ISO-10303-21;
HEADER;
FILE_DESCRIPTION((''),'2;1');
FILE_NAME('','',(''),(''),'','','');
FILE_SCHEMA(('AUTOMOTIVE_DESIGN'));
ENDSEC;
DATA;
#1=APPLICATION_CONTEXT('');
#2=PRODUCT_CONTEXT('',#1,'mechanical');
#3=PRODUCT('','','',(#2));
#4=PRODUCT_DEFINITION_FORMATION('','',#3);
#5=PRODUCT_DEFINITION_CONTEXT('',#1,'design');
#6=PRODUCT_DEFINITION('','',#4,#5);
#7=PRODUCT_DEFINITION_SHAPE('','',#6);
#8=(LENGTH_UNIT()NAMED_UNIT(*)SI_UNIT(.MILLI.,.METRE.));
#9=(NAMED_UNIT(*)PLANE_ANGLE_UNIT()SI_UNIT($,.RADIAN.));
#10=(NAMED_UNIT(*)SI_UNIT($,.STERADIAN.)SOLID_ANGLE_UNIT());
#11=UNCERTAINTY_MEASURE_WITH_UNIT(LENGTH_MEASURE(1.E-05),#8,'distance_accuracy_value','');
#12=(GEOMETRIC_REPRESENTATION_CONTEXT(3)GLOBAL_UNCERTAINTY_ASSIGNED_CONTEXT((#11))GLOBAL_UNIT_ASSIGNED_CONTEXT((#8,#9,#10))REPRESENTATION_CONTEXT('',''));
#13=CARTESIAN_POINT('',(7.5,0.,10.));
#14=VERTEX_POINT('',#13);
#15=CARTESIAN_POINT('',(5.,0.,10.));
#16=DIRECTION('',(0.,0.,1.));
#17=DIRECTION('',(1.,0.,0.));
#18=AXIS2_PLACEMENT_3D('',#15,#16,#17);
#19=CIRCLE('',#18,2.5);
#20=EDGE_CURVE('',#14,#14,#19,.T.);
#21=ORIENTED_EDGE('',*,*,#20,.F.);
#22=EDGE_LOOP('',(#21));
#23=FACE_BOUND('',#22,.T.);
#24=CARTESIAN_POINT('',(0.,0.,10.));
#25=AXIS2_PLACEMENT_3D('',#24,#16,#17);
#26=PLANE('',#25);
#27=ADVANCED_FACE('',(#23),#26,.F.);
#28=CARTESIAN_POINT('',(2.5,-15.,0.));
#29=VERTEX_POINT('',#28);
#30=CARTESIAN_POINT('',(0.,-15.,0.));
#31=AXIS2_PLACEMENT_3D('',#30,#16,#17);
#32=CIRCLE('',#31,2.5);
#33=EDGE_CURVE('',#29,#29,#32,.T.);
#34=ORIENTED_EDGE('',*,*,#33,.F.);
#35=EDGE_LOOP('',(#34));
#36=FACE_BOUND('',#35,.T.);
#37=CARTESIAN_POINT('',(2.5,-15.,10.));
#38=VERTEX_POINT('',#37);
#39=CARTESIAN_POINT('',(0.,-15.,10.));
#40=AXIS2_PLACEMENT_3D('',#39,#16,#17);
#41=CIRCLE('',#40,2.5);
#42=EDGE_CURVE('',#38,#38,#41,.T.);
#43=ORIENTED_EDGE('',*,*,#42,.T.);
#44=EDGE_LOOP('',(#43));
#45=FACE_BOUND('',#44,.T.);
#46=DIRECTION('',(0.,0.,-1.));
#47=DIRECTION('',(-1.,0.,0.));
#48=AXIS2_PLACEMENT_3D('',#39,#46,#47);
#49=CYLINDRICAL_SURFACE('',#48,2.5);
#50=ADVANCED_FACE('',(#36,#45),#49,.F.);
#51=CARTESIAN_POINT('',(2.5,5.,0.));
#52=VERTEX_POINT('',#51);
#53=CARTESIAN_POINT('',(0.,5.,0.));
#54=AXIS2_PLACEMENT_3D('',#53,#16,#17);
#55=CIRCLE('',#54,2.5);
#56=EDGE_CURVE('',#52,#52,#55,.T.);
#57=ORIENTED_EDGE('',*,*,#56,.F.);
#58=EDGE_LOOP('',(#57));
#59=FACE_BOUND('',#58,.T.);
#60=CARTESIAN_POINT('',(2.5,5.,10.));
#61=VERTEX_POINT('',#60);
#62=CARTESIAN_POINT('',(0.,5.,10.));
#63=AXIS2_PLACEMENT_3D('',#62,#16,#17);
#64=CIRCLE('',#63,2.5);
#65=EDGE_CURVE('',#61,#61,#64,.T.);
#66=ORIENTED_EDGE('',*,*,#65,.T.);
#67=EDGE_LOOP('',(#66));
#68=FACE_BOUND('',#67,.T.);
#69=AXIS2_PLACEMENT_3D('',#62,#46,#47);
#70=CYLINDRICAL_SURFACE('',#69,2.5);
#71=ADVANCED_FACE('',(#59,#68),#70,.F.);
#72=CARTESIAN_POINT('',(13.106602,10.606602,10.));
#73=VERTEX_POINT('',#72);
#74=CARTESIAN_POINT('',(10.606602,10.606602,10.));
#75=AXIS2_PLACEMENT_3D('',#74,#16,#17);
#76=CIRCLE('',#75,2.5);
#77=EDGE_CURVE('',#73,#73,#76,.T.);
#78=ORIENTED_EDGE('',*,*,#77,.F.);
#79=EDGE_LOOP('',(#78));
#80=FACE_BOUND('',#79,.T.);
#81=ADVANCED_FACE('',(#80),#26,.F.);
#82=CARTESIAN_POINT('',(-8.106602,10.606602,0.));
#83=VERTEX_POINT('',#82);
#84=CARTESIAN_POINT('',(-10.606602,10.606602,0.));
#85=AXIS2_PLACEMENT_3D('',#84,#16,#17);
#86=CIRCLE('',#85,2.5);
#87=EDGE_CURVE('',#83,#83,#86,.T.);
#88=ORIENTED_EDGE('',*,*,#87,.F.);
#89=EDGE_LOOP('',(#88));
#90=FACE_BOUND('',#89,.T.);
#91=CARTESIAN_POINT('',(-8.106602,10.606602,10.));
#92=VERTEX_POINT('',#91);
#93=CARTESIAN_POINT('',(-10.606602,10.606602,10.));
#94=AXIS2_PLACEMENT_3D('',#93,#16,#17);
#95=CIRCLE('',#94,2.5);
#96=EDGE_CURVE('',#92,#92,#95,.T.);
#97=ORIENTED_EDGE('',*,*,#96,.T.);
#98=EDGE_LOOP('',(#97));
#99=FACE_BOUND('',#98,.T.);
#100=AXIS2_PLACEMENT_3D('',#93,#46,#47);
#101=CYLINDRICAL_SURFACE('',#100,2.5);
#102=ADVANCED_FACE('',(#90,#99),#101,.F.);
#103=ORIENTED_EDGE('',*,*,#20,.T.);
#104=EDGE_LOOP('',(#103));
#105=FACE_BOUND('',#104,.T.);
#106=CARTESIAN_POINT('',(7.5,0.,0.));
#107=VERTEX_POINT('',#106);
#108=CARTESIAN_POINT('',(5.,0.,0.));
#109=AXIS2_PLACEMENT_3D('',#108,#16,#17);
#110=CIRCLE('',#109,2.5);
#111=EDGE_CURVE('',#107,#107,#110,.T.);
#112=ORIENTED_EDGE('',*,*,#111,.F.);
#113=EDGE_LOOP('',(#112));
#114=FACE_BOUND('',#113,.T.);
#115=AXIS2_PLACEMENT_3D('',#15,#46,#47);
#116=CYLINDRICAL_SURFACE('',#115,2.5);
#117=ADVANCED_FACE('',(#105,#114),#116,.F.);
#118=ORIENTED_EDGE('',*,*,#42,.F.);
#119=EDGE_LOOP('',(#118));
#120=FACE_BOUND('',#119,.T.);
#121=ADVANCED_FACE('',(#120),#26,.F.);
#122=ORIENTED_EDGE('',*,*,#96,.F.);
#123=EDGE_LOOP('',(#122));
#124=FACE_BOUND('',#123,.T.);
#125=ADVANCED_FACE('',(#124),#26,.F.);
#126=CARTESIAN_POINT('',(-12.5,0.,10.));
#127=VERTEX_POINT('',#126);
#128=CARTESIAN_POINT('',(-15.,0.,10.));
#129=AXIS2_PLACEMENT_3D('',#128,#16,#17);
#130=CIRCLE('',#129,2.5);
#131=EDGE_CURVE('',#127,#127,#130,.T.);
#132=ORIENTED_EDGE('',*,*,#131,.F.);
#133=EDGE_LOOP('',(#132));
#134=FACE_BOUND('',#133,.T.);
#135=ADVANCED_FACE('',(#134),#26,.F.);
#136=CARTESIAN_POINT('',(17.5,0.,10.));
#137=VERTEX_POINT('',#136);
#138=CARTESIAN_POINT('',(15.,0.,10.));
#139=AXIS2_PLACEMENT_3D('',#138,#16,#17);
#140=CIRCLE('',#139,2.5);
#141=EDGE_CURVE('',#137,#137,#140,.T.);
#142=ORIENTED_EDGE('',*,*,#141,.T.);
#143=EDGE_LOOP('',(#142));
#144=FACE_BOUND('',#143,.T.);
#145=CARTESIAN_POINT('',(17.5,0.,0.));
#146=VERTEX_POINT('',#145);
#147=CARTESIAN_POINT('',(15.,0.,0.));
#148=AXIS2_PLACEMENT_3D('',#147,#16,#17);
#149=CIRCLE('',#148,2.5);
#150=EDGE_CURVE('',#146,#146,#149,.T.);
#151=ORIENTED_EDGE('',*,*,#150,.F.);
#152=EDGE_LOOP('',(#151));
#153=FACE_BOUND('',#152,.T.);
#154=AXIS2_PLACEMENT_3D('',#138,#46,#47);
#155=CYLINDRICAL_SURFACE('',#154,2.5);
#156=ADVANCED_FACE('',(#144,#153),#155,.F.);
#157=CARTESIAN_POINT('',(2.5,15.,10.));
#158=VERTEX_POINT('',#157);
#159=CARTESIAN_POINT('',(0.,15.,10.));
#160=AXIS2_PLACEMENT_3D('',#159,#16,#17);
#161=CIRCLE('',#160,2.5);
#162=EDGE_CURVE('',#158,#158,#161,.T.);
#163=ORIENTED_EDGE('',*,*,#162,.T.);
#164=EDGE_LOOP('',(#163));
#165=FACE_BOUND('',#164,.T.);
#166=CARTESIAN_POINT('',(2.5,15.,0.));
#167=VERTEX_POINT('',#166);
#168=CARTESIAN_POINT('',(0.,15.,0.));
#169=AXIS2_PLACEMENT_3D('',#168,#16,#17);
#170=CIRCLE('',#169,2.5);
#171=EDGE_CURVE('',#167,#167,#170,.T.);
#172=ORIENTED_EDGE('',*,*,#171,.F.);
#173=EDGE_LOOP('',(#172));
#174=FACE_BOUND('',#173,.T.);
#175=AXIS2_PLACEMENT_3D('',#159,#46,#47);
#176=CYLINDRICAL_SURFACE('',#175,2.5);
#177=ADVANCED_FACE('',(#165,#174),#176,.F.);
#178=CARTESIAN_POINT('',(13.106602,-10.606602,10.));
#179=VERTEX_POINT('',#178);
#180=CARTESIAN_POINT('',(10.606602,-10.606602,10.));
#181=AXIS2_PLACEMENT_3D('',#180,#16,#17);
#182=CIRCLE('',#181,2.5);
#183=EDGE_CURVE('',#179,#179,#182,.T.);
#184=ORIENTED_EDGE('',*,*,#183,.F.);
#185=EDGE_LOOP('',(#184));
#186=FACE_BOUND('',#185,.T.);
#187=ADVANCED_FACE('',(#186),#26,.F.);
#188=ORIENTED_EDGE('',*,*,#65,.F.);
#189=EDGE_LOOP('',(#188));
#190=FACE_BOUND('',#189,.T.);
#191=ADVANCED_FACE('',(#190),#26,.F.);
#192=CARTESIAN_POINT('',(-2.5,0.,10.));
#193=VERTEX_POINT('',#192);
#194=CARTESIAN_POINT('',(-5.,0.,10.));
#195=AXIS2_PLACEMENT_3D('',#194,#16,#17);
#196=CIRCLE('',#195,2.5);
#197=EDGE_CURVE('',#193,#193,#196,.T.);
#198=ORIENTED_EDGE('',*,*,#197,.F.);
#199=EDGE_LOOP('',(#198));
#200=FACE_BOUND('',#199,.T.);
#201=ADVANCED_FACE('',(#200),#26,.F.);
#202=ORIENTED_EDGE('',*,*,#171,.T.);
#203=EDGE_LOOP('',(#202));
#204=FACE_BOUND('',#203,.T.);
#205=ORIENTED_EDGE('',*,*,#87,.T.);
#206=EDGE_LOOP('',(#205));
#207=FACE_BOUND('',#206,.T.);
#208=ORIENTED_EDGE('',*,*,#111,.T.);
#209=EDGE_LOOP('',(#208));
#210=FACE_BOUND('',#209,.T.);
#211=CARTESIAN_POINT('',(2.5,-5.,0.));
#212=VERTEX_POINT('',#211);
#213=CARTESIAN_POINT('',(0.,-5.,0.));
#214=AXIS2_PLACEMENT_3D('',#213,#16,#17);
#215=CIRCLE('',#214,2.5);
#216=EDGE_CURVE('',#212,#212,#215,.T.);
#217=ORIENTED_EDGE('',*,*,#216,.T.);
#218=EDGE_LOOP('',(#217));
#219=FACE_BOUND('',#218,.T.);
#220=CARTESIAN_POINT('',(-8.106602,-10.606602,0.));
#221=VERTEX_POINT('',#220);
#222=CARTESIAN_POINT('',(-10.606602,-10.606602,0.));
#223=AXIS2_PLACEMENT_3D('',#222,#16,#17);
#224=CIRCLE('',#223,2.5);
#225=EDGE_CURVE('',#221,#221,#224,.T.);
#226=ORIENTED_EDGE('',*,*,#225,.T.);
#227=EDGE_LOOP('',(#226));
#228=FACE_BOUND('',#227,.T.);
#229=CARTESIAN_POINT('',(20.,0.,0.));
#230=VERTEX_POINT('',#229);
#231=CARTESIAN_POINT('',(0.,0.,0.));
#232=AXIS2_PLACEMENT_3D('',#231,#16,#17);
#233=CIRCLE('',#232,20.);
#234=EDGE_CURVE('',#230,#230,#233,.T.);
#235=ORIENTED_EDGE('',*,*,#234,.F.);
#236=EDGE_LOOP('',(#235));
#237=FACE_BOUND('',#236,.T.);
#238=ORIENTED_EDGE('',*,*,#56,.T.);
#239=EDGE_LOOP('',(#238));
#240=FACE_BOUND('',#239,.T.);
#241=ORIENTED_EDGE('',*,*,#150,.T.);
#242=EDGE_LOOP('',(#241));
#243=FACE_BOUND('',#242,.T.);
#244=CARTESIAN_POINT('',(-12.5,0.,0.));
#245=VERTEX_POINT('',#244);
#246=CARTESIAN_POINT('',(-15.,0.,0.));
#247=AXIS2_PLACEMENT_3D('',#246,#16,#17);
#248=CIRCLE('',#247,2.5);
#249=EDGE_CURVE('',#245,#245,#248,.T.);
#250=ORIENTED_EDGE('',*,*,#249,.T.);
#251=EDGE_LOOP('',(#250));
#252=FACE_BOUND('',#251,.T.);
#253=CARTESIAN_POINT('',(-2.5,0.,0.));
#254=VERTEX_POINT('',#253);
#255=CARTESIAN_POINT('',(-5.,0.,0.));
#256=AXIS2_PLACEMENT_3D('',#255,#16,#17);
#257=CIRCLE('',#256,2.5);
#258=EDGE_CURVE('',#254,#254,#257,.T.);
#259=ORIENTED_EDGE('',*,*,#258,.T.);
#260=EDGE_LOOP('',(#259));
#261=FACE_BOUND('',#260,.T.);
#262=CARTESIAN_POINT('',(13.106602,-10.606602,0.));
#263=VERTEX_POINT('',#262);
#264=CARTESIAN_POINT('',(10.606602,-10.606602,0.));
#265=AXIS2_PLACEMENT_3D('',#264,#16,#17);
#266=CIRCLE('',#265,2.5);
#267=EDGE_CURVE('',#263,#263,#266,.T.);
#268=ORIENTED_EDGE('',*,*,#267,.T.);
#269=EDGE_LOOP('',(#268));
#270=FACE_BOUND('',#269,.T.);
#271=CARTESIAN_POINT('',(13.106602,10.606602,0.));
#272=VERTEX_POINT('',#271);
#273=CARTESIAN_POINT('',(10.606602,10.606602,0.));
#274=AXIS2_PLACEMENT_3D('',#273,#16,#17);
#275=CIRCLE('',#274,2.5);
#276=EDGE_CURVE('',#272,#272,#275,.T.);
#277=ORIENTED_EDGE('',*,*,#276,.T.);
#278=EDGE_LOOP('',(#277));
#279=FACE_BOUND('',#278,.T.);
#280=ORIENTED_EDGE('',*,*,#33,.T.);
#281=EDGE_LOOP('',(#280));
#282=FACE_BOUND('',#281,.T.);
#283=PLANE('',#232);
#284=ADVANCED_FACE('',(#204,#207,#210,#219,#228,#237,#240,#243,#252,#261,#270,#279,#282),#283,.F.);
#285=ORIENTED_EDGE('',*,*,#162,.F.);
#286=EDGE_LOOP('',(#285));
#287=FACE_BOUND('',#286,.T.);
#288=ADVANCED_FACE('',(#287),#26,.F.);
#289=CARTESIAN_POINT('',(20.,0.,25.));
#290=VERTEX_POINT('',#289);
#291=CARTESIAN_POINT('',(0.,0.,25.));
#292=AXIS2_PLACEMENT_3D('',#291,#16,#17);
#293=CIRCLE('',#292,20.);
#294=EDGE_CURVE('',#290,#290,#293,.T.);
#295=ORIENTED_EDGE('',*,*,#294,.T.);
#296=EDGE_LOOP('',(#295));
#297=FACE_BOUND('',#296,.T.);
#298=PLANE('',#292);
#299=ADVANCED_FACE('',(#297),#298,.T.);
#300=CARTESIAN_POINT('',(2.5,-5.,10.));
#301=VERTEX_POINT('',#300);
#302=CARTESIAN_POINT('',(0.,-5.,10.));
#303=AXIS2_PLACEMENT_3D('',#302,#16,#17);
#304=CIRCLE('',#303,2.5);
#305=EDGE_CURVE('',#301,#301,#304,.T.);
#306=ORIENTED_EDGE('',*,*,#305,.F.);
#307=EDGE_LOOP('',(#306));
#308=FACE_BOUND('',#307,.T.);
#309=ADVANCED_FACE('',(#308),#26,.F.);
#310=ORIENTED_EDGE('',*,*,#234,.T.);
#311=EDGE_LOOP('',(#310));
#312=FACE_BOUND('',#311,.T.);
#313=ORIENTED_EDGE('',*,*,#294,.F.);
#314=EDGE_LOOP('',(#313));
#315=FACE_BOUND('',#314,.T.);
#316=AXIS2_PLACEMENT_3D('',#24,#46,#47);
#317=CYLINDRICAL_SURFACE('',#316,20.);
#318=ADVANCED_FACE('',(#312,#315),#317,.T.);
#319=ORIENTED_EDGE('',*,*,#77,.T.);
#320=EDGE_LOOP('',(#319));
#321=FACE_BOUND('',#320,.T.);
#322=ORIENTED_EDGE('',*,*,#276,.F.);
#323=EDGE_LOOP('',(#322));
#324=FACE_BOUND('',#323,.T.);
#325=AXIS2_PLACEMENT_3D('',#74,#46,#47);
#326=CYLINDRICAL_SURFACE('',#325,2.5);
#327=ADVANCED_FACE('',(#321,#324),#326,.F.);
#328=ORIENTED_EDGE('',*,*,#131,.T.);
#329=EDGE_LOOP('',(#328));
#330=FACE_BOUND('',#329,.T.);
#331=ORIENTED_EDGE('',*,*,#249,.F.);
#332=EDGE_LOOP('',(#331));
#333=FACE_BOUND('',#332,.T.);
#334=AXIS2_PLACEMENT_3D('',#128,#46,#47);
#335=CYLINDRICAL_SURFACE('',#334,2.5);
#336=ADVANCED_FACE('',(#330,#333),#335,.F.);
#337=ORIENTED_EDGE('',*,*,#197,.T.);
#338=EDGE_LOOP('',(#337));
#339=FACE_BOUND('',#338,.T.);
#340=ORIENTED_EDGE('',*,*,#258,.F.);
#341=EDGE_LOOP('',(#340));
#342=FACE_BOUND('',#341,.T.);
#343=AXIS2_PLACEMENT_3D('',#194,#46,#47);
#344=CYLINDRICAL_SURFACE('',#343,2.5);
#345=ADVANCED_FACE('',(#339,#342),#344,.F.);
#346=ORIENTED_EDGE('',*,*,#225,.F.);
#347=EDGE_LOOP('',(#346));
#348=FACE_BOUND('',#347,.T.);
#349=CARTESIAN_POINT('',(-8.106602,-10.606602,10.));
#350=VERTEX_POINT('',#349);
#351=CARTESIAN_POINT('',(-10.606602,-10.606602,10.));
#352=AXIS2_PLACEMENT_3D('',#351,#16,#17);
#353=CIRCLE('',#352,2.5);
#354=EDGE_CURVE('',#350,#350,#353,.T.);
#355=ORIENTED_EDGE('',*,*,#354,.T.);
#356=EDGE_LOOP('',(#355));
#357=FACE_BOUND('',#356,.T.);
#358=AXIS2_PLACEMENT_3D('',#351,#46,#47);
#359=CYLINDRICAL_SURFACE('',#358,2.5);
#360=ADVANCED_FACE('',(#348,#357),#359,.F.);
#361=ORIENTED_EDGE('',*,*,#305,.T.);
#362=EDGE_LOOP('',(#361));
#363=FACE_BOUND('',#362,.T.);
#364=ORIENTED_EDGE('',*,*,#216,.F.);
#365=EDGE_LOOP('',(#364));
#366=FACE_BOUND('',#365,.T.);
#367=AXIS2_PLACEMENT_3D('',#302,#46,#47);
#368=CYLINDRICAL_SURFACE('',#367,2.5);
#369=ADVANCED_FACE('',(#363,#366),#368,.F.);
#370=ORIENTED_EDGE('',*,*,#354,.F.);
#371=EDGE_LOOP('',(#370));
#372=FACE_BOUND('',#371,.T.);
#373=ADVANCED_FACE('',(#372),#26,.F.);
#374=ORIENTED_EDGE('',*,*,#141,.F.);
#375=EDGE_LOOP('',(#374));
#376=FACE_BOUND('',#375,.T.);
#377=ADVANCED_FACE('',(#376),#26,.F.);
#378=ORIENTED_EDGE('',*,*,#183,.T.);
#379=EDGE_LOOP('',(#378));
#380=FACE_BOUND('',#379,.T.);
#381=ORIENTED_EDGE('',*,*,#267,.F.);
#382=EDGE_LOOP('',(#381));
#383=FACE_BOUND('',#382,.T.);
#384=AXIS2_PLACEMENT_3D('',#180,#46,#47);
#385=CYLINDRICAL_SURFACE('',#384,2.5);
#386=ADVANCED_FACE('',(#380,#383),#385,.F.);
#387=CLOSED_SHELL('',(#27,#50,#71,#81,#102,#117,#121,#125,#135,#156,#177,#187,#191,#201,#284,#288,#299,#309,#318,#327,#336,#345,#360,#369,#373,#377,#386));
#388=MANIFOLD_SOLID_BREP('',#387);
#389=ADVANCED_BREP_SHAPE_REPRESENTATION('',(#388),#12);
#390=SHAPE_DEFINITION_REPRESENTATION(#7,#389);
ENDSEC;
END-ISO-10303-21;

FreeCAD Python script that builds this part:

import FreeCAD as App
import Part
import Sketcher

V = App.Vector
Q = App.Units.Quantity

doc = App.newDocument("Part")
params = doc.addObject("Spreadsheet::Sheet", "Params")
for row, (alias, value) in enumerate([
    ("sketch1_diameter", "40 mm"),
    ("sketch1_diameter2", "5 mm"),
    ("pad1_length", "10 mm"),
    ("sketch2_diameter", "40 mm"),
    ("pad2_length", "15 mm"),
], start=1):
    params.set(f"A{row}", alias)
    params.set(f"B{row}", "=" + value)
    params.setAlias(f"B{row}", alias)

body = doc.addObject("PartDesign::Body", "Body")

# Sketch on XY plane
sketch1 = body.newObject("Sketcher::SketchObject", "Sketch")
sketch1.AttachmentSupport = (doc.getObject("XY_Plane"), [""])
sketch1.MapMode = "FlatFace"
sketch1.addGeometry([
    Part.Circle(V(0, 0, 0), V(0, 0, 1), 20),  # 0
    Part.Circle(V(-10.6, -10.6, 0), V(0, 0, 1), 2.5),  # 1
    Part.Circle(V(0, -15, 0), V(0, 0, 1), 2.5),  # 2
    Part.Circle(V(10.6, -10.6, 0), V(0, 0, 1), 2.5),  # 3
    Part.Circle(V(0, -5, 0), V(0, 0, 1), 2.5),  # 4
    Part.Circle(V(-15, 0, 0), V(0, 0, 1), 2.5),  # 5
    Part.Circle(V(-5, 0, 0), V(0, 0, 1), 2.5),  # 6
    Part.Circle(V(-10.6, 10.6, 0), V(0, 0, 1), 2.5),  # 7
    Part.Circle(V(5, 0, 0), V(0, 0, 1), 2.5),  # 8
    Part.Circle(V(0, 5, 0), V(0, 0, 1), 2.5),  # 9
    Part.Circle(V(15, 0, 0), V(0, 0, 1), 2.5),  # 10
    Part.Circle(V(0, 15, 0), V(0, 0, 1), 2.5),  # 11
    Part.Circle(V(10.6, 10.6, 0), V(0, 0, 1), 2.5),  # 12
], False)
sketch1.addConstraint([
    Sketcher.Constraint("Coincident", 0, 3, -1, 1),
    Sketcher.Constraint("Equal", 1, 2),
    Sketcher.Constraint("Equal", 2, 3),
    Sketcher.Constraint("Equal", 3, 4),
    Sketcher.Constraint("Equal", 4, 5),
    Sketcher.Constraint("Equal", 5, 6),
    Sketcher.Constraint("Equal", 6, 7),
    Sketcher.Constraint("Equal", 7, 8),
    Sketcher.Constraint("Equal", 8, 9),
    Sketcher.Constraint("Equal", 9, 10),
    Sketcher.Constraint("Equal", 10, 11),
    Sketcher.Constraint("Equal", 11, 12),
    Sketcher.Constraint("Symmetric", 3, 3, 7, 3, -1, 1),
    Sketcher.Constraint("Symmetric", 6, 3, 8, 3, -1, 1),
    Sketcher.Constraint("Symmetric", 4, 3, 9, 3, -1, 1),
    Sketcher.Constraint("Symmetric", 5, 3, 10, 3, -1, 1),
    Sketcher.Constraint("Symmetric", 2, 3, 11, 3, -1, 1),
    Sketcher.Constraint("Symmetric", 1, 3, 12, 3, -1, 1),
    Sketcher.Constraint("Symmetric", 1, 3, 3, 3, -2),
    Sketcher.Constraint("PointOnObject", 2, 3, -2),
    Sketcher.Constraint("PointOnObject", 4, 3, -2),
    Sketcher.Constraint("PointOnObject", 5, 3, -1),
    Sketcher.Constraint("PointOnObject", 6, 3, -1),
    Sketcher.Constraint("Diameter", 0, Q("40 mm")),
    Sketcher.Constraint("Diameter", 1, Q("5 mm")),
    Sketcher.Constraint("DistanceY", 2, 3, -1, 1, Q("15 mm")),
    Sketcher.Constraint("DistanceY", 4, 3, -1, 1, Q("5 mm")),
    Sketcher.Constraint("DistanceX", 5, 3, -1, 1, Q("15 mm")),
    Sketcher.Constraint("DistanceX", 6, 3, -1, 1, Q("5 mm")),
    Sketcher.Constraint("DistanceX", 1, 3, -1, 1, Q("10.606602 mm")),
    Sketcher.Constraint("DistanceY", 1, 3, -1, 1, Q("10.606602 mm")),
])
sketch1.setExpression("Constraints[23]", "Params.sketch1_diameter")
sketch1.setExpression("Constraints[24]", "Params.sketch1_diameter2")
pad1 = body.newObject("PartDesign::Pad", "Pad")
pad1.Profile = sketch1
pad1.setExpression("Length", "Params.pad1_length")

# Sketch on XY plane
sketch2 = body.newObject("Sketcher::SketchObject", "Sketch001")
sketch2.AttachmentSupport = (doc.getObject("XY_Plane"), [""])
sketch2.MapMode = "FlatFace"
sketch2.AttachmentOffset = App.Placement(V(0, 0, 10), App.Rotation())
sketch2.addGeometry(Part.Circle(V(0, 0, 0), V(0, 0, 1), 20), False)
sketch2.addConstraint([
    Sketcher.Constraint("Coincident", 0, 3, -1, 1),
    Sketcher.Constraint("Diameter", 0, Q("40 mm")),
])
sketch2.setExpression("Constraints[1]", "Params.sketch2_diameter")
pad2 = body.newObject("PartDesign::Pad", "Pad001")
pad2.Profile = sketch2
pad2.setExpression("Length", "Params.pad2_length")

doc.recompute()
